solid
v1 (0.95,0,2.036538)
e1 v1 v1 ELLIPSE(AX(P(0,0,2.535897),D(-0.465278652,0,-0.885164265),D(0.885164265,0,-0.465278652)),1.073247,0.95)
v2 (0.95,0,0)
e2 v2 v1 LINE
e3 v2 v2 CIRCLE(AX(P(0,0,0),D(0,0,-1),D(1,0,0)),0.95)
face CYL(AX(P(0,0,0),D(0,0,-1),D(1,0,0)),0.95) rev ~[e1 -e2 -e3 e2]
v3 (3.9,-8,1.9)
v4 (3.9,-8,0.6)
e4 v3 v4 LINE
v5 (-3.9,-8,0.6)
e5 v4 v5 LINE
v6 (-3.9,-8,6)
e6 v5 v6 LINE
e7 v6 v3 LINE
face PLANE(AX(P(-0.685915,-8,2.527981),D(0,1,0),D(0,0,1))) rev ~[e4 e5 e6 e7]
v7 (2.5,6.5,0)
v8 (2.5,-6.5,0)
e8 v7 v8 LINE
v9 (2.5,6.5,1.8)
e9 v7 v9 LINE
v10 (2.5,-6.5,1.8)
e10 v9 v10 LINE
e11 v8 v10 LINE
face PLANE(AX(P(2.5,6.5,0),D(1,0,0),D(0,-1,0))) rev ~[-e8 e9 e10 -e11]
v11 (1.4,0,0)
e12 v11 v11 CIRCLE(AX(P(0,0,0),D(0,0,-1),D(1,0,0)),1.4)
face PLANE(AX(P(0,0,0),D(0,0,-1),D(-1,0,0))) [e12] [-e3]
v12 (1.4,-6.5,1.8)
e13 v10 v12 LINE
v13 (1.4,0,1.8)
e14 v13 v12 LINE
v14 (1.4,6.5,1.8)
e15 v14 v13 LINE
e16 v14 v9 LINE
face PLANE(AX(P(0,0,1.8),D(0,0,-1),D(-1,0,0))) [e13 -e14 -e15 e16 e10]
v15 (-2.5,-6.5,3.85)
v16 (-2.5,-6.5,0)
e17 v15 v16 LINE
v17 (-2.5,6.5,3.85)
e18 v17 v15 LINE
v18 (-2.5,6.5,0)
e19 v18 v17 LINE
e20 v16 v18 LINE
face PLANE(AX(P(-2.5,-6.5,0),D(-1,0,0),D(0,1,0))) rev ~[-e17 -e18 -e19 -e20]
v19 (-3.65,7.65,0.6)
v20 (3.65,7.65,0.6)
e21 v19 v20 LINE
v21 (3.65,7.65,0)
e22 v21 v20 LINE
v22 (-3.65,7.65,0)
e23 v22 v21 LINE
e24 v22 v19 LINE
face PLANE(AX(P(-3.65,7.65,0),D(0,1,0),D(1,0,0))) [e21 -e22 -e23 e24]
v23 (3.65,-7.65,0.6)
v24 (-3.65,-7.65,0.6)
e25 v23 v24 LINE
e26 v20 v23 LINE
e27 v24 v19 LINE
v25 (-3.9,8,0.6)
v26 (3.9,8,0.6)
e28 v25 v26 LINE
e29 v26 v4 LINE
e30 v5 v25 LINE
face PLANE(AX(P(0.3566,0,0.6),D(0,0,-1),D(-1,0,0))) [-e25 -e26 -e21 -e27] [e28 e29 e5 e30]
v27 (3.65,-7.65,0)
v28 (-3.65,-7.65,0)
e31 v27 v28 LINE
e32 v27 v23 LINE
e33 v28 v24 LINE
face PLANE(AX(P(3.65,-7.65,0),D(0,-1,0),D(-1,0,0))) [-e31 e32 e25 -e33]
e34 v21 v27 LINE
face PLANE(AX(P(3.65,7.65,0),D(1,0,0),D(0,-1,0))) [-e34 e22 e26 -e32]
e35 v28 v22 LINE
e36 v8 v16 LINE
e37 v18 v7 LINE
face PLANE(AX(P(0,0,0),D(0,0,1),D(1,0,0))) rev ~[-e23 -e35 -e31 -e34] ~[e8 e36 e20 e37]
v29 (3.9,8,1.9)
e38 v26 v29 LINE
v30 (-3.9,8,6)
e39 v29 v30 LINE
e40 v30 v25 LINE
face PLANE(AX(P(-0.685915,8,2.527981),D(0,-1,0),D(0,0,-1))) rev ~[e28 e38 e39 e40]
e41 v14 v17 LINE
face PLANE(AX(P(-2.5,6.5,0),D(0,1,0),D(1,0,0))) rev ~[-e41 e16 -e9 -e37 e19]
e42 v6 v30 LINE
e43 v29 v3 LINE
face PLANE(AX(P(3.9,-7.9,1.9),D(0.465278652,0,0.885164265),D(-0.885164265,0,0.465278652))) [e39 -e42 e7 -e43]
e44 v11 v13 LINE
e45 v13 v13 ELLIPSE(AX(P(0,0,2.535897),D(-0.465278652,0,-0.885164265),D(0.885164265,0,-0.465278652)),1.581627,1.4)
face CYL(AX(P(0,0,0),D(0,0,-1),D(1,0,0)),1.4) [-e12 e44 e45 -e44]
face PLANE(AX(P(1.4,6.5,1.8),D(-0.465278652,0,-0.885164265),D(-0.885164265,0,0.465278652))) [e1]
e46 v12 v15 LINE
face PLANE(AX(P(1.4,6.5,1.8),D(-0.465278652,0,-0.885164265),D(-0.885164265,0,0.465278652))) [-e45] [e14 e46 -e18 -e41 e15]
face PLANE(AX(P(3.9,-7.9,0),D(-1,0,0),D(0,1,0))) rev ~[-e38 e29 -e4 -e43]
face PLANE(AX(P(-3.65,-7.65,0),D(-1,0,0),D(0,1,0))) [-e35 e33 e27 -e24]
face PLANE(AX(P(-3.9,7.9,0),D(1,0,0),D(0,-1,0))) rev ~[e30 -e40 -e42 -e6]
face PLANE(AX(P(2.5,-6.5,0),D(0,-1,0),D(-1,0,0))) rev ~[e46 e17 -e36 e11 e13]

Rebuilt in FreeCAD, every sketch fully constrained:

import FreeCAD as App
import Part
import Sketcher

doc = App.newDocument("Part")
body = doc.addObject("PartDesign::Body", "Body")

sketch1 = body.newObject("Sketcher::SketchObject", "Sketch")
sketch1.AttachmentSupport = (doc.getObject("XY_Plane"), [""])
sketch1.MapMode = "FlatFace"
sketch1.addGeometry(Part.LineSegment(App.Vector(4, -8, 0), App.Vector(4, 8, 0)), False)
sketch1.addGeometry(Part.LineSegment(App.Vector(4, 8, 0), App.Vector(-4, 8, 0)), False)
sketch1.addGeometry(Part.LineSegment(App.Vector(-4, 8, 0), App.Vector(-4, -8, 0)), False)
sketch1.addGeometry(Part.LineSegment(App.Vector(-4, -8, 0), App.Vector(4, -8, 0)), False)
sketch1.addConstraint(Sketcher.Constraint("Coincident", 0, 2, 1, 1))
sketch1.addConstraint(Sketcher.Constraint("Coincident", 1, 2, 2, 1))
sketch1.addConstraint(Sketcher.Constraint("Coincident", 2, 2, 3, 1))
sketch1.addConstraint(Sketcher.Constraint("Coincident", 3, 2, 0, 1))
sketch1.addConstraint(Sketcher.Constraint("Vertical", 0))
sketch1.addConstraint(Sketcher.Constraint("Horizontal", 1))
sketch1.addConstraint(Sketcher.Constraint("Vertical", 2))
sketch1.addConstraint(Sketcher.Constraint("Horizontal", 3))
sketch1.addConstraint(Sketcher.Constraint("Symmetric", 0, 2, 2, 2, -1, 1))
sketch1.addConstraint(Sketcher.Constraint("DistanceX", 1, 2, 1, 1, 7.8))
sketch1.addConstraint(Sketcher.Constraint("DistanceY", 0, 1, 0, 2, 15.8))
pad1 = body.newObject("PartDesign::Pad", "Pad")
pad1.Profile = sketch1
pad1.Length = 6

sketch2 = body.newObject("Sketcher::SketchObject", "Sketch001")
sketch2.AttachmentSupport = (doc.getObject("XZ_Plane"), [""])
sketch2.MapMode = "FlatFace"
sketch2.AttachmentOffset = App.Placement(App.Vector(0, 0, 7.9), App.Rotation())
sketch2.addGeometry(Part.LineSegment(App.Vector(3.9, 1.9, 0), App.Vector(3.9, 0, 0)), False)
sketch2.addGeometry(Part.LineSegment(App.Vector(3.9, 0, 0), App.Vector(6.9, 6.4, 0)), False)
sketch2.addGeometry(Part.LineSegment(App.Vector(6.9, 6.4, 0), App.Vector(-3.9, 6.6, 0)), False)
sketch2.addGeometry(Part.LineSegment(App.Vector(-3.9, 6.6, 0), App.Vector(-3.9, 6, 0)), False)
sketch2.addGeometry(Part.LineSegment(App.Vector(-3.9, 6, 0), App.Vector(3.9, 1.9, 0)), False)
sketch2.addConstraint(Sketcher.Constraint("Coincident", 0, 2, 1, 1))
sketch2.addConstraint(Sketcher.Constraint("Coincident", 1, 2, 2, 1))
sketch2.addConstraint(Sketcher.Constraint("Coincident", 2, 2, 3, 1))
sketch2.addConstraint(Sketcher.Constraint("Coincident", 3, 2, 4, 1))
sketch2.addConstraint(Sketcher.Constraint("Coincident", 4, 2, 0, 1))
sketch2.addConstraint(Sketcher.Constraint("Vertical", 0))
sketch2.addConstraint(Sketcher.Constraint("Vertical", 3))
sketch2.addConstraint(Sketcher.Constraint("PointOnObject", 0, 2, -1))
sketch2.addConstraint(Sketcher.Constraint("DistanceY", 0, 2, 0, 1, 1.9))
sketch2.addConstraint(Sketcher.Constraint("DistanceY", -1, 1, 3, 2, 6.0))
sketch2.addConstraint(Sketcher.Constraint("DistanceX", -1, 1, 0, 2, 3.9))
sketch2.addConstraint(Sketcher.Constraint("DistanceX", 2, 2, -1, 1, 3.9))
sketch2.addConstraint(Sketcher.Constraint("DistanceY", 3, 2, 3, 1, 0.562))
sketch2.addConstraint(Sketcher.Constraint("Distance", 1, 7.065))
sketch2.addConstraint(Sketcher.Constraint("Distance", 2, 10.7709))
pocket1 = body.newObject("PartDesign::Pocket", "Pocket")
pocket1.Profile = sketch2
pocket1.Length = 28.4067

sketch3 = body.newObject("Sketcher::SketchObject", "Sketch002")
sketch3.AttachmentSupport = (doc.getObject("XY_Plane"), [""])
sketch3.MapMode = "FlatFace"
sketch3.addGeometry(Part.LineSegment(App.Vector(-5, -9, 0), App.Vector(-5, 9, 0)), False)
sketch3.addGeometry(Part.LineSegment(App.Vector(-5, 9, 0), App.Vector(5, 9, 0)), False)
sketch3.addGeometry(Part.LineSegment(App.Vector(5, 9, 0), App.Vector(5, -9, 0)), False)
sketch3.addGeometry(Part.LineSegment(App.Vector(5, -9, 0), App.Vector(-5, -9, 0)), False)
sketch3.addGeometry(Part.LineSegment(App.Vector(-4, -8, 0), App.Vector(4, -8, 0)), False)
sketch3.addGeometry(Part.LineSegment(App.Vector(4, -8, 0), App.Vector(4, 8, 0)), False)
sketch3.addGeometry(Part.LineSegment(App.Vector(4, 8, 0), App.Vector(-4, 8, 0)), False)
sketch3.addGeometry(Part.LineSegment(App.Vector(-4, 8, 0), App.Vector(-4, -8, 0)), False)
sketch3.addConstraint(Sketcher.Constraint("Coincident", 0, 2, 1, 1))
sketch3.addConstraint(Sketcher.Constraint("Coincident", 1, 2, 2, 1))
sketch3.addConstraint(Sketcher.Constraint("Coincident", 2, 2, 3, 1))
sketch3.addConstraint(Sketcher.Constraint("Coincident", 3, 2, 0, 1))
sketch3.addConstraint(Sketcher.Constraint("Coincident", 4, 2, 5, 1))
sketch3.addConstraint(Sketcher.Constraint("Coincident", 5, 2, 6, 1))
sketch3.addConstraint(Sketcher.Constraint("Coincident", 6, 2, 7, 1))
sketch3.addConstraint(Sketcher.Constraint("Coincident", 7, 2, 4, 1))
sketch3.addConstraint(Sketcher.Constraint("Vertical", 0))
sketch3.addConstraint(Sketcher.Constraint("Horizontal", 1))
sketch3.addConstraint(Sketcher.Constraint("Vertical", 2))
sketch3.addConstraint(Sketcher.Constraint("Horizontal", 3))
sketch3.addConstraint(Sketcher.Constraint("Horizontal", 4))
sketch3.addConstraint(Sketcher.Constraint("Vertical", 5))
sketch3.addConstraint(Sketcher.Constraint("Horizontal", 6))
sketch3.addConstraint(Sketcher.Constraint("Vertical", 7))
sketch3.addConstraint(Sketcher.Constraint("Symmetric", 4, 2, 6, 2, -1, 1))
sketch3.addConstraint(Sketcher.Constraint("DistanceX", 4, 1, 4, 2, 7.3))
sketch3.addConstraint(Sketcher.Constraint("DistanceY", 5, 1, 5, 2, 15.3))
sketch3.addConstraint(Sketcher.Constraint("DistanceX", 0, 2, -1, 1, 4.59))
sketch3.addConstraint(Sketcher.Constraint("DistanceX", 1, 1, 1, 2, 9.8932))
sketch3.addConstraint(Sketcher.Constraint("DistanceY", 0, 1, 0, 2, 17.5778))
sketch3.addConstraint(Sketcher.Constraint("DistanceY", -1, 1, 0, 2, 8.789))
pocket2 = body.newObject("PartDesign::Pocket", "Pocket001")
pocket2.Profile = sketch3
pocket2.Length = 0.6
pocket2.Reversed = True

sketch4 = body.newObject("Sketcher::SketchObject", "Sketch003")
sketch4.AttachmentSupport = (doc.getObject("XY_Plane"), [""])
sketch4.MapMode = "FlatFace"
sketch4.addGeometry(Part.LineSegment(App.Vector(-2, -6, 0), App.Vector(-2, 6, 0)), False)
sketch4.addGeometry(Part.LineSegment(App.Vector(-2, 6, 0), App.Vector(2, 6, 0)), False)
sketch4.addGeometry(Part.LineSegment(App.Vector(2, 6, 0), App.Vector(2, -6, 0)), False)
sketch4.addGeometry(Part.LineSegment(App.Vector(2, -6, 0), App.Vector(-2, -6, 0)), False)
sketch4.addConstraint(Sketcher.Constraint("Coincident", 0, 2, 1, 1))
sketch4.addConstraint(Sketcher.Constraint("Coincident", 1, 2, 2, 1))
sketch4.addConstraint(Sketcher.Constraint("Coincident", 2, 2, 3, 1))
sketch4.addConstraint(Sketcher.Constraint("Coincident", 3, 2, 0, 1))
sketch4.addConstraint(Sketcher.Constraint("Vertical", 0))
sketch4.addConstraint(Sketcher.Constraint("Horizontal", 1))
sketch4.addConstraint(Sketcher.Constraint("Vertical", 2))
sketch4.addConstraint(Sketcher.Constraint("Horizontal", 3))
sketch4.addConstraint(Sketcher.Constraint("Symmetric", 0, 2, 2, 2, -1, 1))
sketch4.addConstraint(Sketcher.Constraint("DistanceX", 1, 1, 1, 2, 5.0))
sketch4.addConstraint(Sketcher.Constraint("DistanceY", 0, 1, 0, 2, 13.0))
pocket3 = body.newObject("PartDesign::Pocket", "Pocket002")
pocket3.Profile = sketch4
pocket3.Length = 1.8
pocket3.Reversed = True

sketch5 = body.newObject("Sketcher::SketchObject", "Sketch004")
sketch5.AttachmentSupport = (doc.getObject("XZ_Plane"), [""])
sketch5.MapMode = "FlatFace"
sketch5.AttachmentOffset = App.Placement(App.Vector(0, 0, -6.5), App.Rotation())
sketch5.addGeometry(Part.LineSegment(App.Vector(-2.5, 3.9, 0), App.Vector(-2.5, 1.8, 0)), False)
sketch5.addGeometry(Part.LineSegment(App.Vector(-2.5, 1.8, 0), App.Vector(1.4, 1.8, 0)), False)
sketch5.addGeometry(Part.LineSegment(App.Vector(1.4, 1.8, 0), App.Vector(-2.5, 3.9, 0)), False)
sketch5.addConstraint(Sketcher.Constraint("Coincident", 0, 2, 1, 1))
sketch5.addConstraint(Sketcher.Constraint("Coincident", 1, 2, 2, 1))
sketch5.addConstraint(Sketcher.Constraint("Coincident", 2, 2, 0, 1))
sketch5.addConstraint(Sketcher.Constraint("Vertical", 0))
sketch5.addConstraint(Sketcher.Constraint("Horizontal", 1))
sketch5.addConstraint(Sketcher.Constraint("DistanceX", 1, 1, 1, 2, 3.9))
sketch5.addConstraint(Sketcher.Constraint("DistanceY", 0, 2, 0, 1, 2.05))
sketch5.addConstraint(Sketcher.Constraint("DistanceX", 0, 2, -1, 1, 2.5))
sketch5.addConstraint(Sketcher.Constraint("DistanceY", -1, 1, 0, 2, 1.8))
pocket4 = body.newObject("PartDesign::Pocket", "Pocket003")
pocket4.Profile = sketch5
pocket4.Length = 13
pocket4.Reversed = True

sketch6 = body.newObject("Sketcher::SketchObject", "Sketch005")
sketch6.AttachmentSupport = (doc.getObject("XY_Plane"), [""])
sketch6.MapMode = "FlatFace"
sketch6.addGeometry(Part.Circle(App.Vector(0, 0, 0), App.Vector(0, 0, 1), 1.4), False)
sketch6.addGeometry(Part.Circle(App.Vector(0, 0, 0), App.Vector(0, 0, 1), 0.9), False)
sketch6.addConstraint(Sketcher.Constraint("Coincident", 0, 3, -1, 1))
sketch6.addConstraint(Sketcher.Constraint("Coincident", 1, 3, -1, 1))
sketch6.addConstraint(Sketcher.Constraint("Diameter", 0, 2.8))
sketch6.addConstraint(Sketcher.Constraint("Diameter", 1, 1.9))
pad2 = body.newObject("PartDesign::Pad", "Pad001")
pad2.Profile = sketch6
pad2.Length = 6.3788

sketch7 = body.newObject("Sketcher::SketchObject", "Sketch006")
sketch7.AttachmentSupport = (doc.getObject("XZ_Plane"), [""])
sketch7.MapMode = "FlatFace"
sketch7.AttachmentOffset = App.Placement(App.Vector(0, 0, 7.9), App.Rotation())
sketch7.addGeometry(Part.LineSegment(App.Vector(3, 7, 0), App.Vector(-4, 6, 0)), False)
sketch7.addGeometry(Part.LineSegment(App.Vector(-4, 6, 0), App.Vector(4, 2, 0)), False)
sketch7.addGeometry(Part.LineSegment(App.Vector(4, 2, 0), App.Vector(3, 7, 0)), False)
sketch7.addConstraint(Sketcher.Constraint("Coincident", 0, 2, 1, 1))
sketch7.addConstraint(Sketcher.Constraint("Coincident", 1, 2, 2, 1))
sketch7.addConstraint(Sketcher.Constraint("Coincident", 2, 2, 0, 1))
sketch7.addConstraint(Sketcher.Constraint("DistanceY", -1, 1, 0, 2, 6.0))
sketch7.addConstraint(Sketcher.Constraint("DistanceX", 0, 2, -1, 1, 3.9))
sketch7.addConstraint(Sketcher.Constraint("DistanceX", -1, 1, 1, 2, 3.9))
sketch7.addConstraint(Sketcher.Constraint("DistanceY", -1, 1, 1, 2, 1.9))
sketch7.addConstraint(Sketcher.Constraint("Distance", 0, 7.467))
sketch7.addConstraint(Sketcher.Constraint("Distance", 2, 5.324))
pocket5 = body.newObject("PartDesign::Pocket", "Pocket004")
pocket5.Profile = sketch7
pocket5.Length = 34.0923

sketch8 = body.newObject("Sketcher::SketchObject", "Sketch007")
sketch8.AttachmentSupport = (doc.getObject("XZ_Plane"), [""])
sketch8.MapMode = "FlatFace"
sketch8.AttachmentOffset = App.Placement(App.Vector(0, 0, 7.9), App.Rotation())
sketch8.addGeometry(Part.LineSegment(App.Vector(-3.9, 0.6, 0), App.Vector(3.9, 0.6, 0)), False)
sketch8.addGeometry(Part.LineSegment(App.Vector(3.9, 0.6, 0), App.Vector(3.9, 1.9, 0)), False)
sketch8.addGeometry(Part.LineSegment(App.Vector(3.9, 1.9, 0), App.Vector(-3.9, 6, 0)), False)
sketch8.addGeometry(Part.LineSegment(App.Vector(-3.9, 6, 0), App.Vector(-3.9, 0.6, 0)), False)
sketch8.addConstraint(Sketcher.Constraint("Coincident", 0, 2, 1, 1))
sketch8.addConstraint(Sketcher.Constraint("Coincident", 1, 2, 2, 1))
sketch8.addConstraint(Sketcher.Constraint("Coincident", 2, 2, 3, 1))
sketch8.addConstraint(Sketcher.Constraint("Coincident", 3, 2, 0, 1))
sketch8.addConstraint(Sketcher.Constraint("Horizontal", 0))
sketch8.addConstraint(Sketcher.Constraint("Vertical", 1))
sketch8.addConstraint(Sketcher.Constraint("Vertical", 3))
sketch8.addConstraint(Sketcher.Constraint("DistanceX", 0, 1, 0, 2, 7.8))
sketch8.addConstraint(Sketcher.Constraint("DistanceY", 1, 1, 1, 2, 1.3))
sketch8.addConstraint(Sketcher.Constraint("DistanceY", 3, 2, 3, 1, 5.4))
sketch8.addConstraint(Sketcher.Constraint("DistanceY", -1, 1, 2, 2, 6.0))
sketch8.addConstraint(Sketcher.Constraint("DistanceX", -1, 1, 0, 2, 3.9))
pad3 = body.newObject("PartDesign::Pad", "Pad002")
pad3.Profile = sketch8
pad3.Length = 0.1

sketch9 = body.newObject("Sketcher::SketchObject", "Sketch008")
sketch9.AttachmentSupport = (doc.getObject("XZ_Plane"), [""])
sketch9.MapMode = "FlatFace"
sketch9.AttachmentOffset = App.Placement(App.Vector(0, 0, -7.9), App.Rotation())
sketch9.addGeometry(Part.LineSegment(App.Vector(-3.9, 0.6, 0), App.Vector(-3.9, 6, 0)), False)
sketch9.addGeometry(Part.LineSegment(App.Vector(-3.9, 6, 0), App.Vector(3.9, 1.9, 0)), False)
sketch9.addGeometry(Part.LineSegment(App.Vector(3.9, 1.9, 0), App.Vector(3.9, 0.6, 0)), False)
sketch9.addGeometry(Part.LineSegment(App.Vector(3.9, 0.6, 0), App.Vector(-3.9, 0.6, 0)), False)
sketch9.addConstraint(Sketcher.Constraint("Coincident", 0, 2, 1, 1))
sketch9.addConstraint(Sketcher.Constraint("Coincident", 1, 2, 2, 1))
sketch9.addConstraint(Sketcher.Constraint("Coincident", 2, 2, 3, 1))
sketch9.addConstraint(Sketcher.Constraint("Coincident", 3, 2, 0, 1))
sketch9.addConstraint(Sketcher.Constraint("Vertical", 0))
sketch9.addConstraint(Sketcher.Constraint("Vertical", 2))
sketch9.addConstraint(Sketcher.Constraint("Horizontal", 3))
sketch9.addConstraint(Sketcher.Constraint("DistanceX", 3, 2, 3, 1, 7.8))
sketch9.addConstraint(Sketcher.Constraint("DistanceY", 0, 1, 0, 2, 5.4))
sketch9.addConstraint(Sketcher.Constraint("DistanceY", 2, 2, 2, 1, 1.3))
sketch9.addConstraint(Sketcher.Constraint("DistanceY", -1, 1, 0, 2, 6.0))
sketch9.addConstraint(Sketcher.Constraint("DistanceX", 0, 2, -1, 1, 3.9))
pad4 = body.newObject("PartDesign::Pad", "Pad003")
pad4.Profile = sketch9
pad4.Length = 0.1
pad4.Reversed = True

doc.recompute()
